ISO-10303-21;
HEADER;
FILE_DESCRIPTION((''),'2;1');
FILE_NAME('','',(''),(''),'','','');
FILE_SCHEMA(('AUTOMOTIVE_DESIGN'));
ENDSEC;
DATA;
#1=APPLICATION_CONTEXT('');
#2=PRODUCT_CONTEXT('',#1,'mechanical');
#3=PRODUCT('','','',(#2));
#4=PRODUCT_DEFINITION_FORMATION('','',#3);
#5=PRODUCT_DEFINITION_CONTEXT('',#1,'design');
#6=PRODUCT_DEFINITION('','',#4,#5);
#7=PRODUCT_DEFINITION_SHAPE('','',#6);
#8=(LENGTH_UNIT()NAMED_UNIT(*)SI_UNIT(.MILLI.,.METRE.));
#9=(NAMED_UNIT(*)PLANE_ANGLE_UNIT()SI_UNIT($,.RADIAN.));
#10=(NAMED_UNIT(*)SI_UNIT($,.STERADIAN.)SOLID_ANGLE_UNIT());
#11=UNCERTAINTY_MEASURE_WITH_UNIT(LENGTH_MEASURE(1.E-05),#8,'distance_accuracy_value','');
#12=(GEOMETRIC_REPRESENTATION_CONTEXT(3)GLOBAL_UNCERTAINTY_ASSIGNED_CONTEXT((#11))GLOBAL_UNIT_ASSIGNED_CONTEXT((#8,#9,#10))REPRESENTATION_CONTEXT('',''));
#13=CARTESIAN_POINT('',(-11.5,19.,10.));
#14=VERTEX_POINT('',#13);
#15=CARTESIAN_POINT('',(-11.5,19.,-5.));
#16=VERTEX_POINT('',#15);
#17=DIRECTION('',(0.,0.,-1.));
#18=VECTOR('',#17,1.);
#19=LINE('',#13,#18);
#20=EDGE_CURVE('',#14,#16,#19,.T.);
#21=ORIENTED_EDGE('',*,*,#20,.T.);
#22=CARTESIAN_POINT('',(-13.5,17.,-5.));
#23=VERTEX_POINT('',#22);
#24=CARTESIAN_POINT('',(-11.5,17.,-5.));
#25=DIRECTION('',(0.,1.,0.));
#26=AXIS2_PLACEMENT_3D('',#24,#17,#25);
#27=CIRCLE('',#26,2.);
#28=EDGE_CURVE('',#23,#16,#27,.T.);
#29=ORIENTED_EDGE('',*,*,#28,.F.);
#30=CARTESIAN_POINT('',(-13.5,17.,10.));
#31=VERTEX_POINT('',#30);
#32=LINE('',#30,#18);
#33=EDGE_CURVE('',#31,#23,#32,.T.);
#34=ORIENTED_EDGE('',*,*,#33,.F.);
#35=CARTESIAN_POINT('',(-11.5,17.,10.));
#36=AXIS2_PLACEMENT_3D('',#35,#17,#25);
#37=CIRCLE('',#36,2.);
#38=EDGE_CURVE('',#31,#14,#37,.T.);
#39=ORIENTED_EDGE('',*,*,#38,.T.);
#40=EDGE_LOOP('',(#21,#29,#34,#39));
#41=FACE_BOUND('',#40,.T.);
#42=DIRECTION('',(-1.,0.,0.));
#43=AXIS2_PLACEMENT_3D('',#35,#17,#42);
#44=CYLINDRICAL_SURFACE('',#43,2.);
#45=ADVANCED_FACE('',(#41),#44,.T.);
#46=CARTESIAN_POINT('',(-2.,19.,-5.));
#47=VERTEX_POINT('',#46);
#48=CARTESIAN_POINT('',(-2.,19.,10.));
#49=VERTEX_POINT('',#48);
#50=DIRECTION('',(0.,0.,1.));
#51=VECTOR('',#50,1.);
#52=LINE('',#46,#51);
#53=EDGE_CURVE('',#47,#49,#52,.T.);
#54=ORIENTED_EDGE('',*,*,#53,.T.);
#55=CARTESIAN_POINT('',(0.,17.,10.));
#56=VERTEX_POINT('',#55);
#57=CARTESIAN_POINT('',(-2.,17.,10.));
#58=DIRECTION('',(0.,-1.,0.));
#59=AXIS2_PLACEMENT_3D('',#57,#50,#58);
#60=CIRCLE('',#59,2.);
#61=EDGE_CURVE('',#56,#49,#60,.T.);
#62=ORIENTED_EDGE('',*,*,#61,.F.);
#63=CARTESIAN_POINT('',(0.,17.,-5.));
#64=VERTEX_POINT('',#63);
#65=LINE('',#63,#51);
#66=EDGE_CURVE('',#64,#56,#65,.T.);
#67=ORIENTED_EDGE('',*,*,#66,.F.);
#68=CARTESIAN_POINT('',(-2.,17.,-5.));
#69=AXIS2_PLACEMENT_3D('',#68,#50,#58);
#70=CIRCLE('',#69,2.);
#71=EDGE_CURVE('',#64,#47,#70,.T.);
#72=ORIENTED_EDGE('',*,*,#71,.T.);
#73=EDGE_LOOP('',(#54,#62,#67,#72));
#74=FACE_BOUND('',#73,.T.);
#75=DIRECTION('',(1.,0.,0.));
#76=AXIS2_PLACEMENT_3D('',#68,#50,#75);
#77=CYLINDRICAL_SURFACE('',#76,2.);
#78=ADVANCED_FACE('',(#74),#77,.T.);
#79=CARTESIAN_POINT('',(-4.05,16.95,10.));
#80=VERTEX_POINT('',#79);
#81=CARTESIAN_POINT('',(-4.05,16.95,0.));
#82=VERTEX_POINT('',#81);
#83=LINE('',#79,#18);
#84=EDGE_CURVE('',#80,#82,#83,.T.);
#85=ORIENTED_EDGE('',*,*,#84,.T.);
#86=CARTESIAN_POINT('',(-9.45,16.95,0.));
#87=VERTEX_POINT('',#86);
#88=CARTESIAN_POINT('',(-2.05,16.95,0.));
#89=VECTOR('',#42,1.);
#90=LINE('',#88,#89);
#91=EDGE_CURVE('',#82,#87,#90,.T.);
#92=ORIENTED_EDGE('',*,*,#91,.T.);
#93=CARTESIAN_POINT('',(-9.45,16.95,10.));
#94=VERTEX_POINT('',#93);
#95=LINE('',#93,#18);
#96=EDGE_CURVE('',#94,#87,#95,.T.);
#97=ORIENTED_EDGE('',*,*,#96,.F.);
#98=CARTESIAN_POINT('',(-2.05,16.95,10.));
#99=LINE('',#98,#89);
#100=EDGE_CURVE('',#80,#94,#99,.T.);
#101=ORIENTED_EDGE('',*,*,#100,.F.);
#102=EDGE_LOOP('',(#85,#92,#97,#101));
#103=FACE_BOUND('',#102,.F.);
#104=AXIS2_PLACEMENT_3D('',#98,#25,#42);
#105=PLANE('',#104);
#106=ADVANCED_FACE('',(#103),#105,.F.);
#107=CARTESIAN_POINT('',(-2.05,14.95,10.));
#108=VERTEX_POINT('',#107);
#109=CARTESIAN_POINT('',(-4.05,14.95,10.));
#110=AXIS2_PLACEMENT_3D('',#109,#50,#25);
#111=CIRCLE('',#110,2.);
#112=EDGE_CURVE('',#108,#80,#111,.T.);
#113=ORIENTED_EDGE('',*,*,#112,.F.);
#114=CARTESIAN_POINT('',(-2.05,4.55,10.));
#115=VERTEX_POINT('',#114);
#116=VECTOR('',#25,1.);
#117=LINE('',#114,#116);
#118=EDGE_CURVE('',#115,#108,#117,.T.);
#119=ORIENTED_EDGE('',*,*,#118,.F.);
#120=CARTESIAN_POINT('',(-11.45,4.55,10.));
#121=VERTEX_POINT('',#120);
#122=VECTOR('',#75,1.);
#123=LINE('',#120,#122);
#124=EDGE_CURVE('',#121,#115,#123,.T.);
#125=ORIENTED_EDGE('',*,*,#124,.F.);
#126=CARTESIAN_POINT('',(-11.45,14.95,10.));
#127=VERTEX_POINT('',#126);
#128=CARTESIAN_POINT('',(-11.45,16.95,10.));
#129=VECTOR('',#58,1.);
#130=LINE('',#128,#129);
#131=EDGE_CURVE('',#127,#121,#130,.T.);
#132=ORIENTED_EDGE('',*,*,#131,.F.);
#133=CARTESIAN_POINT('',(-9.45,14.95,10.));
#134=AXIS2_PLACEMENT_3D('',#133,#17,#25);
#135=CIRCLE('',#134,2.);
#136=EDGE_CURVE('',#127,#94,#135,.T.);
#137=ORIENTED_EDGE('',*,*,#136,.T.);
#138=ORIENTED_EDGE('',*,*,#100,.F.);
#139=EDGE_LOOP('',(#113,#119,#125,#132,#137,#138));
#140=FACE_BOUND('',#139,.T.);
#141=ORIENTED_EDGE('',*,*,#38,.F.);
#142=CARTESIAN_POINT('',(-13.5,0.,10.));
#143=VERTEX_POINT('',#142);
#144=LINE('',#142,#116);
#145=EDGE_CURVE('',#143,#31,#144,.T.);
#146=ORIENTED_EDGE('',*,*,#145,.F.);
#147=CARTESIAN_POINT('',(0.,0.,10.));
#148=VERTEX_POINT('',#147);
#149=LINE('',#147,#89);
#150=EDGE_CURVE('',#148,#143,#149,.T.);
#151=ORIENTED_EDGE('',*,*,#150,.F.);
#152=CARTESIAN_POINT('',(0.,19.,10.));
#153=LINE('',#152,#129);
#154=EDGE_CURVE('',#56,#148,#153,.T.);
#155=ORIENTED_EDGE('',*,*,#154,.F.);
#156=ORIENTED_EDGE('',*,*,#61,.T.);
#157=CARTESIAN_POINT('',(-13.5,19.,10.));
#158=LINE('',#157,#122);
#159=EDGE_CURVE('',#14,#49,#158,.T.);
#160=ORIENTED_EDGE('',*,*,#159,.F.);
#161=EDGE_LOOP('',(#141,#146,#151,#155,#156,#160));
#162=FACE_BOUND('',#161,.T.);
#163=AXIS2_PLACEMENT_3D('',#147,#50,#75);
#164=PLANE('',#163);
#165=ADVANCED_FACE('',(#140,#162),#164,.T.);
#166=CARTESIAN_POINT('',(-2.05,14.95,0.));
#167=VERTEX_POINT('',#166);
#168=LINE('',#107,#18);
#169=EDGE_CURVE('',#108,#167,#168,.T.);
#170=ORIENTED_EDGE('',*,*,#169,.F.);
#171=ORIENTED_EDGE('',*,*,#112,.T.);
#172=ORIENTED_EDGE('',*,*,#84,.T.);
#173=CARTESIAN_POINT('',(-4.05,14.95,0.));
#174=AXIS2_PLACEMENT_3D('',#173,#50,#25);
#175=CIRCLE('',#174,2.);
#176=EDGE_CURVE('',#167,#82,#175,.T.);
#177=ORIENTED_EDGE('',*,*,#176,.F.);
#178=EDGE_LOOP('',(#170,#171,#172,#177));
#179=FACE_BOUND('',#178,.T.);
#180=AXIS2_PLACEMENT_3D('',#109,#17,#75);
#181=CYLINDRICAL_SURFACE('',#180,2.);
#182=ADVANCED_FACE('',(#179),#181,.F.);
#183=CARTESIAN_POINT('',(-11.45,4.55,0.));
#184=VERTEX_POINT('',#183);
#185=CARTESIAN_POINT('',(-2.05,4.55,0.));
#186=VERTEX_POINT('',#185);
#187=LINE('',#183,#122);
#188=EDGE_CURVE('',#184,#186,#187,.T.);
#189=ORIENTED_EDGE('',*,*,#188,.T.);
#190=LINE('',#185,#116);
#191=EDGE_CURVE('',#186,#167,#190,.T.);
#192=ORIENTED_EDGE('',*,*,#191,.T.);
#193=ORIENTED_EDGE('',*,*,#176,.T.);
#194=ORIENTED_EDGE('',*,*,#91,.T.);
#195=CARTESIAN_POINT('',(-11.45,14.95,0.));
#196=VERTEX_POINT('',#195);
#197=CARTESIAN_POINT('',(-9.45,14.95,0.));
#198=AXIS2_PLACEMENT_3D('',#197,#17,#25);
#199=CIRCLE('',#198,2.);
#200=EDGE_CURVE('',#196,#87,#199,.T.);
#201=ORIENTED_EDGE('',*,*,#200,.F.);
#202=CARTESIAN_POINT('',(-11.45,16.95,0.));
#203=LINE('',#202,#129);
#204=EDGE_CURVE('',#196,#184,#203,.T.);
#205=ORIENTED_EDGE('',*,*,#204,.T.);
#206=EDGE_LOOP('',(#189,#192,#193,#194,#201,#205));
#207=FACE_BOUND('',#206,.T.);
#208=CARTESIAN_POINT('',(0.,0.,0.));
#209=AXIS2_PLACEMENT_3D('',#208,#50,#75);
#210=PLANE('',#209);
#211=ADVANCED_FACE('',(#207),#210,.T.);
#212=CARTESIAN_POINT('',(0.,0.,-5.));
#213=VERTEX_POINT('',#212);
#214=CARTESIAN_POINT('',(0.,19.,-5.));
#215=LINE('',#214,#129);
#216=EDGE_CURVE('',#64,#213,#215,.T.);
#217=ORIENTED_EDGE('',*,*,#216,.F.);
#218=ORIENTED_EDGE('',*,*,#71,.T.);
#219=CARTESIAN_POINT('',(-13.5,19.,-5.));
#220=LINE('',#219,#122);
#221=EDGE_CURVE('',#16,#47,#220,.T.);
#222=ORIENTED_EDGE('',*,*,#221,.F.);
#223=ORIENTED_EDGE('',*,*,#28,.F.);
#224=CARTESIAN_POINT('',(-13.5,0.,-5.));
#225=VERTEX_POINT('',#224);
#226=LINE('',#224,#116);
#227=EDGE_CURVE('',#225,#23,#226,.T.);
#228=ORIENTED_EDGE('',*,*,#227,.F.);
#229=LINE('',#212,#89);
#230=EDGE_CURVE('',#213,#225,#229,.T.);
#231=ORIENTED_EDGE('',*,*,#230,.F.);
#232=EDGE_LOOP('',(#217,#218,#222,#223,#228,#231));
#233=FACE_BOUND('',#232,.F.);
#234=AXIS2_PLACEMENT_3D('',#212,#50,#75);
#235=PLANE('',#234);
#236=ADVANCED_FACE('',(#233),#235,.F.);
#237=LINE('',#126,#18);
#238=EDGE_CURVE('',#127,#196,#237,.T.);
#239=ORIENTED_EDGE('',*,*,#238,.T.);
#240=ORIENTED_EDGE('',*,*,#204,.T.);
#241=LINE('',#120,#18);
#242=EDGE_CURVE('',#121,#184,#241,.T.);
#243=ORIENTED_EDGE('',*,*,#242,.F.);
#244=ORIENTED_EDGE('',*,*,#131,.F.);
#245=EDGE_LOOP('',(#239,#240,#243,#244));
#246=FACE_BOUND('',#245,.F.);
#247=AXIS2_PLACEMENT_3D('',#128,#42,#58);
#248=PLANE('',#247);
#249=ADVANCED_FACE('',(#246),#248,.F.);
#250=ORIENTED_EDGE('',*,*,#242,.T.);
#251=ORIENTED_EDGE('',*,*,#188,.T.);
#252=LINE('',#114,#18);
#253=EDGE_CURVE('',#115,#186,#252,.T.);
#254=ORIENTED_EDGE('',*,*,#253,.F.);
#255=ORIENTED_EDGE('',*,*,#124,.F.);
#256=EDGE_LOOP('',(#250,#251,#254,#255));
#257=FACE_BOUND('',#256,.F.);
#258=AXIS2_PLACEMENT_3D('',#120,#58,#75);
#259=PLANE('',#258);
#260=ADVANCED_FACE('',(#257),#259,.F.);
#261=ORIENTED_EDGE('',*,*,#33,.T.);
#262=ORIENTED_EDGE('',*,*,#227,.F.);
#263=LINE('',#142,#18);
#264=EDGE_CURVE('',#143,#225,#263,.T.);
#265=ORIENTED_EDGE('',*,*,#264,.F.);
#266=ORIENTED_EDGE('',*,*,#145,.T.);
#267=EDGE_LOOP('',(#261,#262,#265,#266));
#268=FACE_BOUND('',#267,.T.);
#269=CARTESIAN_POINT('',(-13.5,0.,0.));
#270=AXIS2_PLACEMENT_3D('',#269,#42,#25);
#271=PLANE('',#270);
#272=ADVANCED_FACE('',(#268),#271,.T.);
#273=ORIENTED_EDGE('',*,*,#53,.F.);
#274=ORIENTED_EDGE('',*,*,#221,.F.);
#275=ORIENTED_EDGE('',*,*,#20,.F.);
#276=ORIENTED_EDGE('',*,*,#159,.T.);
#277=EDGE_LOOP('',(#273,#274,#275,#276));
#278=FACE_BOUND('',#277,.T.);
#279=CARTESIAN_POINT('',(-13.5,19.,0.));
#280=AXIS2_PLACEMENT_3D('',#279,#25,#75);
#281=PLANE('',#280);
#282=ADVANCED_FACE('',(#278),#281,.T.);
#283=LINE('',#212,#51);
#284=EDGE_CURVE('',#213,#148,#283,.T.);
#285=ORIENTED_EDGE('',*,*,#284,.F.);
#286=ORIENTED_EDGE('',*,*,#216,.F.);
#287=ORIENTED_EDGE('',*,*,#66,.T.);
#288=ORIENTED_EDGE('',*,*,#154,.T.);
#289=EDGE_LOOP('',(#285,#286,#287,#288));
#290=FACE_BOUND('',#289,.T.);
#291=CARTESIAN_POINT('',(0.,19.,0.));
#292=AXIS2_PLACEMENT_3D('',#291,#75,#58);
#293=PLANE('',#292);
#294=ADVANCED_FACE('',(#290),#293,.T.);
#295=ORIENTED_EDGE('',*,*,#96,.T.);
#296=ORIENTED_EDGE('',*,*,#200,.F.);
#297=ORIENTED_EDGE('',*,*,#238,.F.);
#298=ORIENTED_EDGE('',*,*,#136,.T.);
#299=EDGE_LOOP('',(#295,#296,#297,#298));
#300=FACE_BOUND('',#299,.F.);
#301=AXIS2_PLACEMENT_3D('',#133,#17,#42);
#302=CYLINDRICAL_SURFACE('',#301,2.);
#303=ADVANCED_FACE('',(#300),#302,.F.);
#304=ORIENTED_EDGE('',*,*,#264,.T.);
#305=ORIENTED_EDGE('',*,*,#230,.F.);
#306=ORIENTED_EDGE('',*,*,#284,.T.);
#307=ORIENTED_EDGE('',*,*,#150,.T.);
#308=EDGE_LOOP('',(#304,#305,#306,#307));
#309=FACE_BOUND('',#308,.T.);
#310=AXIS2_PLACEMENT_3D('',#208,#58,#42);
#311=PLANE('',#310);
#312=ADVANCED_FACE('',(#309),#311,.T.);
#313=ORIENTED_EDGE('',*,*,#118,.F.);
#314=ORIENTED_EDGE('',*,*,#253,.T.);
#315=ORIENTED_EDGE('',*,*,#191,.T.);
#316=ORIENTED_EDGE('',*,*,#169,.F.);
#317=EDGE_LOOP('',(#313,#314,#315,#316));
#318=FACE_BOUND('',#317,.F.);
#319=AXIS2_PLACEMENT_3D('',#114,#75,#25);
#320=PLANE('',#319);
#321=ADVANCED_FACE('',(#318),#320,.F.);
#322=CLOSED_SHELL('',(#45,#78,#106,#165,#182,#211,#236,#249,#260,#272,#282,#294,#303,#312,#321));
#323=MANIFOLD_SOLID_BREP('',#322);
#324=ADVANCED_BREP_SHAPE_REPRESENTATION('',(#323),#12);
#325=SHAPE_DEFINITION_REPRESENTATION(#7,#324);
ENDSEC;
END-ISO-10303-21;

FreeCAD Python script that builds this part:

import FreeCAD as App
import Part
import Sketcher
Q = App.Units.Quantity


def edges_at(feature, points):
    """Names of the edges that pass closest to the given points."""
    edges = feature.Shape.Edges
    near = lambda p: min(range(len(edges)), key=lambda i: edges[i].distToShape(Part.Vertex(*p))[0])
    return sorted({f"Edge{near(p) + 1}" for p in points})


def add_polygon(sketch, points):
    """Adds a closed chain of lines whose ends are joined by coincident constraints."""
    first, n = sketch.GeometryCount, len(points)
    for a, b in zip(points, points[1:] + points[:1]):
        sketch.addGeometry(Part.LineSegment(App.Vector(*a, 0), App.Vector(*b, 0)), False)
    for i in range(n):
        sketch.addConstraint(Sketcher.Constraint("Coincident", first + i, 2, first + (i + 1) % n, 1))

doc = App.newDocument("Part")
body = doc.addObject("PartDesign::Body", "Body")

sketch1 = body.newObject("Sketcher::SketchObject", "Sketch")
sketch1.AttachmentSupport = (doc.getObject("XY_Plane"), [""])
sketch1.MapMode = "FlatFace"
add_polygon(sketch1, [(-14, 0), (0, 0), (0, 19), (-14, 19)])
sketch1.addConstraint([
    Sketcher.Constraint("Horizontal", 0),
    Sketcher.Constraint("Vertical", 1),
    Sketcher.Constraint("Horizontal", 2),
    Sketcher.Constraint("Vertical", 3),
    Sketcher.Constraint("Coincident", 0, 2, -1, 1),
    Sketcher.Constraint("DistanceY", 1, 1, 1, 2, Q("19 mm")),
    Sketcher.Constraint("DistanceX", 0, 1, 0, 2, Q("13.5 mm")),
])
pad1 = body.newObject("PartDesign::Pad", "Pad")
pad1.Profile = sketch1
pad1.Type = "TwoLengths"
pad1.Length = 10
pad1.Length2 = 5

sketch2 = body.newObject("Sketcher::SketchObject", "Sketch001")
sketch2.AttachmentSupport = (doc.getObject("XY_Plane"), [""])
sketch2.MapMode = "FlatFace"
sketch2.AttachmentOffset = App.Placement(App.Vector(0, 0, 10), App.Rotation())
add_polygon(sketch2, [(-11, 17), (-11, 5), (-2, 5), (-2, 17)])
sketch2.addConstraint([
    Sketcher.Constraint("Vertical", 0),
    Sketcher.Constraint("Horizontal", 1),
    Sketcher.Constraint("Vertical", 2),
    Sketcher.Constraint("Horizontal", 3),
    Sketcher.Constraint("DistanceY", -1, 1, 0, 2, Q("4.55 mm")),
    Sketcher.Constraint("DistanceX", 1, 2, -1, 1, Q("2.05 mm")),
    Sketcher.Constraint("DistanceX", 1, 1, 1, 2, Q("9.4 mm")),
    Sketcher.Constraint("DistanceY", 0, 2, 0, 1, Q("12.4 mm")),
])
pocket1 = body.newObject("PartDesign::Pocket", "Pocket")
pocket1.Profile = sketch2
pocket1.Length = 10
doc.recompute()

fillet = body.newObject("PartDesign::Fillet", "Fillet")
fillet.Base = (pocket1, edges_at(pocket1, [(-11.45, 16.95, 5), (-2.05, 16.95, 5)]))
fillet.Radius = 2
doc.recompute()

fillet2 = body.newObject("PartDesign::Fillet", "Fillet001")
fillet2.Base = (fillet, edges_at(fillet, [(0, 19, 2.5), (-13.5, 19, 2.5)]))
fillet2.Radius = 2

doc.recompute()
